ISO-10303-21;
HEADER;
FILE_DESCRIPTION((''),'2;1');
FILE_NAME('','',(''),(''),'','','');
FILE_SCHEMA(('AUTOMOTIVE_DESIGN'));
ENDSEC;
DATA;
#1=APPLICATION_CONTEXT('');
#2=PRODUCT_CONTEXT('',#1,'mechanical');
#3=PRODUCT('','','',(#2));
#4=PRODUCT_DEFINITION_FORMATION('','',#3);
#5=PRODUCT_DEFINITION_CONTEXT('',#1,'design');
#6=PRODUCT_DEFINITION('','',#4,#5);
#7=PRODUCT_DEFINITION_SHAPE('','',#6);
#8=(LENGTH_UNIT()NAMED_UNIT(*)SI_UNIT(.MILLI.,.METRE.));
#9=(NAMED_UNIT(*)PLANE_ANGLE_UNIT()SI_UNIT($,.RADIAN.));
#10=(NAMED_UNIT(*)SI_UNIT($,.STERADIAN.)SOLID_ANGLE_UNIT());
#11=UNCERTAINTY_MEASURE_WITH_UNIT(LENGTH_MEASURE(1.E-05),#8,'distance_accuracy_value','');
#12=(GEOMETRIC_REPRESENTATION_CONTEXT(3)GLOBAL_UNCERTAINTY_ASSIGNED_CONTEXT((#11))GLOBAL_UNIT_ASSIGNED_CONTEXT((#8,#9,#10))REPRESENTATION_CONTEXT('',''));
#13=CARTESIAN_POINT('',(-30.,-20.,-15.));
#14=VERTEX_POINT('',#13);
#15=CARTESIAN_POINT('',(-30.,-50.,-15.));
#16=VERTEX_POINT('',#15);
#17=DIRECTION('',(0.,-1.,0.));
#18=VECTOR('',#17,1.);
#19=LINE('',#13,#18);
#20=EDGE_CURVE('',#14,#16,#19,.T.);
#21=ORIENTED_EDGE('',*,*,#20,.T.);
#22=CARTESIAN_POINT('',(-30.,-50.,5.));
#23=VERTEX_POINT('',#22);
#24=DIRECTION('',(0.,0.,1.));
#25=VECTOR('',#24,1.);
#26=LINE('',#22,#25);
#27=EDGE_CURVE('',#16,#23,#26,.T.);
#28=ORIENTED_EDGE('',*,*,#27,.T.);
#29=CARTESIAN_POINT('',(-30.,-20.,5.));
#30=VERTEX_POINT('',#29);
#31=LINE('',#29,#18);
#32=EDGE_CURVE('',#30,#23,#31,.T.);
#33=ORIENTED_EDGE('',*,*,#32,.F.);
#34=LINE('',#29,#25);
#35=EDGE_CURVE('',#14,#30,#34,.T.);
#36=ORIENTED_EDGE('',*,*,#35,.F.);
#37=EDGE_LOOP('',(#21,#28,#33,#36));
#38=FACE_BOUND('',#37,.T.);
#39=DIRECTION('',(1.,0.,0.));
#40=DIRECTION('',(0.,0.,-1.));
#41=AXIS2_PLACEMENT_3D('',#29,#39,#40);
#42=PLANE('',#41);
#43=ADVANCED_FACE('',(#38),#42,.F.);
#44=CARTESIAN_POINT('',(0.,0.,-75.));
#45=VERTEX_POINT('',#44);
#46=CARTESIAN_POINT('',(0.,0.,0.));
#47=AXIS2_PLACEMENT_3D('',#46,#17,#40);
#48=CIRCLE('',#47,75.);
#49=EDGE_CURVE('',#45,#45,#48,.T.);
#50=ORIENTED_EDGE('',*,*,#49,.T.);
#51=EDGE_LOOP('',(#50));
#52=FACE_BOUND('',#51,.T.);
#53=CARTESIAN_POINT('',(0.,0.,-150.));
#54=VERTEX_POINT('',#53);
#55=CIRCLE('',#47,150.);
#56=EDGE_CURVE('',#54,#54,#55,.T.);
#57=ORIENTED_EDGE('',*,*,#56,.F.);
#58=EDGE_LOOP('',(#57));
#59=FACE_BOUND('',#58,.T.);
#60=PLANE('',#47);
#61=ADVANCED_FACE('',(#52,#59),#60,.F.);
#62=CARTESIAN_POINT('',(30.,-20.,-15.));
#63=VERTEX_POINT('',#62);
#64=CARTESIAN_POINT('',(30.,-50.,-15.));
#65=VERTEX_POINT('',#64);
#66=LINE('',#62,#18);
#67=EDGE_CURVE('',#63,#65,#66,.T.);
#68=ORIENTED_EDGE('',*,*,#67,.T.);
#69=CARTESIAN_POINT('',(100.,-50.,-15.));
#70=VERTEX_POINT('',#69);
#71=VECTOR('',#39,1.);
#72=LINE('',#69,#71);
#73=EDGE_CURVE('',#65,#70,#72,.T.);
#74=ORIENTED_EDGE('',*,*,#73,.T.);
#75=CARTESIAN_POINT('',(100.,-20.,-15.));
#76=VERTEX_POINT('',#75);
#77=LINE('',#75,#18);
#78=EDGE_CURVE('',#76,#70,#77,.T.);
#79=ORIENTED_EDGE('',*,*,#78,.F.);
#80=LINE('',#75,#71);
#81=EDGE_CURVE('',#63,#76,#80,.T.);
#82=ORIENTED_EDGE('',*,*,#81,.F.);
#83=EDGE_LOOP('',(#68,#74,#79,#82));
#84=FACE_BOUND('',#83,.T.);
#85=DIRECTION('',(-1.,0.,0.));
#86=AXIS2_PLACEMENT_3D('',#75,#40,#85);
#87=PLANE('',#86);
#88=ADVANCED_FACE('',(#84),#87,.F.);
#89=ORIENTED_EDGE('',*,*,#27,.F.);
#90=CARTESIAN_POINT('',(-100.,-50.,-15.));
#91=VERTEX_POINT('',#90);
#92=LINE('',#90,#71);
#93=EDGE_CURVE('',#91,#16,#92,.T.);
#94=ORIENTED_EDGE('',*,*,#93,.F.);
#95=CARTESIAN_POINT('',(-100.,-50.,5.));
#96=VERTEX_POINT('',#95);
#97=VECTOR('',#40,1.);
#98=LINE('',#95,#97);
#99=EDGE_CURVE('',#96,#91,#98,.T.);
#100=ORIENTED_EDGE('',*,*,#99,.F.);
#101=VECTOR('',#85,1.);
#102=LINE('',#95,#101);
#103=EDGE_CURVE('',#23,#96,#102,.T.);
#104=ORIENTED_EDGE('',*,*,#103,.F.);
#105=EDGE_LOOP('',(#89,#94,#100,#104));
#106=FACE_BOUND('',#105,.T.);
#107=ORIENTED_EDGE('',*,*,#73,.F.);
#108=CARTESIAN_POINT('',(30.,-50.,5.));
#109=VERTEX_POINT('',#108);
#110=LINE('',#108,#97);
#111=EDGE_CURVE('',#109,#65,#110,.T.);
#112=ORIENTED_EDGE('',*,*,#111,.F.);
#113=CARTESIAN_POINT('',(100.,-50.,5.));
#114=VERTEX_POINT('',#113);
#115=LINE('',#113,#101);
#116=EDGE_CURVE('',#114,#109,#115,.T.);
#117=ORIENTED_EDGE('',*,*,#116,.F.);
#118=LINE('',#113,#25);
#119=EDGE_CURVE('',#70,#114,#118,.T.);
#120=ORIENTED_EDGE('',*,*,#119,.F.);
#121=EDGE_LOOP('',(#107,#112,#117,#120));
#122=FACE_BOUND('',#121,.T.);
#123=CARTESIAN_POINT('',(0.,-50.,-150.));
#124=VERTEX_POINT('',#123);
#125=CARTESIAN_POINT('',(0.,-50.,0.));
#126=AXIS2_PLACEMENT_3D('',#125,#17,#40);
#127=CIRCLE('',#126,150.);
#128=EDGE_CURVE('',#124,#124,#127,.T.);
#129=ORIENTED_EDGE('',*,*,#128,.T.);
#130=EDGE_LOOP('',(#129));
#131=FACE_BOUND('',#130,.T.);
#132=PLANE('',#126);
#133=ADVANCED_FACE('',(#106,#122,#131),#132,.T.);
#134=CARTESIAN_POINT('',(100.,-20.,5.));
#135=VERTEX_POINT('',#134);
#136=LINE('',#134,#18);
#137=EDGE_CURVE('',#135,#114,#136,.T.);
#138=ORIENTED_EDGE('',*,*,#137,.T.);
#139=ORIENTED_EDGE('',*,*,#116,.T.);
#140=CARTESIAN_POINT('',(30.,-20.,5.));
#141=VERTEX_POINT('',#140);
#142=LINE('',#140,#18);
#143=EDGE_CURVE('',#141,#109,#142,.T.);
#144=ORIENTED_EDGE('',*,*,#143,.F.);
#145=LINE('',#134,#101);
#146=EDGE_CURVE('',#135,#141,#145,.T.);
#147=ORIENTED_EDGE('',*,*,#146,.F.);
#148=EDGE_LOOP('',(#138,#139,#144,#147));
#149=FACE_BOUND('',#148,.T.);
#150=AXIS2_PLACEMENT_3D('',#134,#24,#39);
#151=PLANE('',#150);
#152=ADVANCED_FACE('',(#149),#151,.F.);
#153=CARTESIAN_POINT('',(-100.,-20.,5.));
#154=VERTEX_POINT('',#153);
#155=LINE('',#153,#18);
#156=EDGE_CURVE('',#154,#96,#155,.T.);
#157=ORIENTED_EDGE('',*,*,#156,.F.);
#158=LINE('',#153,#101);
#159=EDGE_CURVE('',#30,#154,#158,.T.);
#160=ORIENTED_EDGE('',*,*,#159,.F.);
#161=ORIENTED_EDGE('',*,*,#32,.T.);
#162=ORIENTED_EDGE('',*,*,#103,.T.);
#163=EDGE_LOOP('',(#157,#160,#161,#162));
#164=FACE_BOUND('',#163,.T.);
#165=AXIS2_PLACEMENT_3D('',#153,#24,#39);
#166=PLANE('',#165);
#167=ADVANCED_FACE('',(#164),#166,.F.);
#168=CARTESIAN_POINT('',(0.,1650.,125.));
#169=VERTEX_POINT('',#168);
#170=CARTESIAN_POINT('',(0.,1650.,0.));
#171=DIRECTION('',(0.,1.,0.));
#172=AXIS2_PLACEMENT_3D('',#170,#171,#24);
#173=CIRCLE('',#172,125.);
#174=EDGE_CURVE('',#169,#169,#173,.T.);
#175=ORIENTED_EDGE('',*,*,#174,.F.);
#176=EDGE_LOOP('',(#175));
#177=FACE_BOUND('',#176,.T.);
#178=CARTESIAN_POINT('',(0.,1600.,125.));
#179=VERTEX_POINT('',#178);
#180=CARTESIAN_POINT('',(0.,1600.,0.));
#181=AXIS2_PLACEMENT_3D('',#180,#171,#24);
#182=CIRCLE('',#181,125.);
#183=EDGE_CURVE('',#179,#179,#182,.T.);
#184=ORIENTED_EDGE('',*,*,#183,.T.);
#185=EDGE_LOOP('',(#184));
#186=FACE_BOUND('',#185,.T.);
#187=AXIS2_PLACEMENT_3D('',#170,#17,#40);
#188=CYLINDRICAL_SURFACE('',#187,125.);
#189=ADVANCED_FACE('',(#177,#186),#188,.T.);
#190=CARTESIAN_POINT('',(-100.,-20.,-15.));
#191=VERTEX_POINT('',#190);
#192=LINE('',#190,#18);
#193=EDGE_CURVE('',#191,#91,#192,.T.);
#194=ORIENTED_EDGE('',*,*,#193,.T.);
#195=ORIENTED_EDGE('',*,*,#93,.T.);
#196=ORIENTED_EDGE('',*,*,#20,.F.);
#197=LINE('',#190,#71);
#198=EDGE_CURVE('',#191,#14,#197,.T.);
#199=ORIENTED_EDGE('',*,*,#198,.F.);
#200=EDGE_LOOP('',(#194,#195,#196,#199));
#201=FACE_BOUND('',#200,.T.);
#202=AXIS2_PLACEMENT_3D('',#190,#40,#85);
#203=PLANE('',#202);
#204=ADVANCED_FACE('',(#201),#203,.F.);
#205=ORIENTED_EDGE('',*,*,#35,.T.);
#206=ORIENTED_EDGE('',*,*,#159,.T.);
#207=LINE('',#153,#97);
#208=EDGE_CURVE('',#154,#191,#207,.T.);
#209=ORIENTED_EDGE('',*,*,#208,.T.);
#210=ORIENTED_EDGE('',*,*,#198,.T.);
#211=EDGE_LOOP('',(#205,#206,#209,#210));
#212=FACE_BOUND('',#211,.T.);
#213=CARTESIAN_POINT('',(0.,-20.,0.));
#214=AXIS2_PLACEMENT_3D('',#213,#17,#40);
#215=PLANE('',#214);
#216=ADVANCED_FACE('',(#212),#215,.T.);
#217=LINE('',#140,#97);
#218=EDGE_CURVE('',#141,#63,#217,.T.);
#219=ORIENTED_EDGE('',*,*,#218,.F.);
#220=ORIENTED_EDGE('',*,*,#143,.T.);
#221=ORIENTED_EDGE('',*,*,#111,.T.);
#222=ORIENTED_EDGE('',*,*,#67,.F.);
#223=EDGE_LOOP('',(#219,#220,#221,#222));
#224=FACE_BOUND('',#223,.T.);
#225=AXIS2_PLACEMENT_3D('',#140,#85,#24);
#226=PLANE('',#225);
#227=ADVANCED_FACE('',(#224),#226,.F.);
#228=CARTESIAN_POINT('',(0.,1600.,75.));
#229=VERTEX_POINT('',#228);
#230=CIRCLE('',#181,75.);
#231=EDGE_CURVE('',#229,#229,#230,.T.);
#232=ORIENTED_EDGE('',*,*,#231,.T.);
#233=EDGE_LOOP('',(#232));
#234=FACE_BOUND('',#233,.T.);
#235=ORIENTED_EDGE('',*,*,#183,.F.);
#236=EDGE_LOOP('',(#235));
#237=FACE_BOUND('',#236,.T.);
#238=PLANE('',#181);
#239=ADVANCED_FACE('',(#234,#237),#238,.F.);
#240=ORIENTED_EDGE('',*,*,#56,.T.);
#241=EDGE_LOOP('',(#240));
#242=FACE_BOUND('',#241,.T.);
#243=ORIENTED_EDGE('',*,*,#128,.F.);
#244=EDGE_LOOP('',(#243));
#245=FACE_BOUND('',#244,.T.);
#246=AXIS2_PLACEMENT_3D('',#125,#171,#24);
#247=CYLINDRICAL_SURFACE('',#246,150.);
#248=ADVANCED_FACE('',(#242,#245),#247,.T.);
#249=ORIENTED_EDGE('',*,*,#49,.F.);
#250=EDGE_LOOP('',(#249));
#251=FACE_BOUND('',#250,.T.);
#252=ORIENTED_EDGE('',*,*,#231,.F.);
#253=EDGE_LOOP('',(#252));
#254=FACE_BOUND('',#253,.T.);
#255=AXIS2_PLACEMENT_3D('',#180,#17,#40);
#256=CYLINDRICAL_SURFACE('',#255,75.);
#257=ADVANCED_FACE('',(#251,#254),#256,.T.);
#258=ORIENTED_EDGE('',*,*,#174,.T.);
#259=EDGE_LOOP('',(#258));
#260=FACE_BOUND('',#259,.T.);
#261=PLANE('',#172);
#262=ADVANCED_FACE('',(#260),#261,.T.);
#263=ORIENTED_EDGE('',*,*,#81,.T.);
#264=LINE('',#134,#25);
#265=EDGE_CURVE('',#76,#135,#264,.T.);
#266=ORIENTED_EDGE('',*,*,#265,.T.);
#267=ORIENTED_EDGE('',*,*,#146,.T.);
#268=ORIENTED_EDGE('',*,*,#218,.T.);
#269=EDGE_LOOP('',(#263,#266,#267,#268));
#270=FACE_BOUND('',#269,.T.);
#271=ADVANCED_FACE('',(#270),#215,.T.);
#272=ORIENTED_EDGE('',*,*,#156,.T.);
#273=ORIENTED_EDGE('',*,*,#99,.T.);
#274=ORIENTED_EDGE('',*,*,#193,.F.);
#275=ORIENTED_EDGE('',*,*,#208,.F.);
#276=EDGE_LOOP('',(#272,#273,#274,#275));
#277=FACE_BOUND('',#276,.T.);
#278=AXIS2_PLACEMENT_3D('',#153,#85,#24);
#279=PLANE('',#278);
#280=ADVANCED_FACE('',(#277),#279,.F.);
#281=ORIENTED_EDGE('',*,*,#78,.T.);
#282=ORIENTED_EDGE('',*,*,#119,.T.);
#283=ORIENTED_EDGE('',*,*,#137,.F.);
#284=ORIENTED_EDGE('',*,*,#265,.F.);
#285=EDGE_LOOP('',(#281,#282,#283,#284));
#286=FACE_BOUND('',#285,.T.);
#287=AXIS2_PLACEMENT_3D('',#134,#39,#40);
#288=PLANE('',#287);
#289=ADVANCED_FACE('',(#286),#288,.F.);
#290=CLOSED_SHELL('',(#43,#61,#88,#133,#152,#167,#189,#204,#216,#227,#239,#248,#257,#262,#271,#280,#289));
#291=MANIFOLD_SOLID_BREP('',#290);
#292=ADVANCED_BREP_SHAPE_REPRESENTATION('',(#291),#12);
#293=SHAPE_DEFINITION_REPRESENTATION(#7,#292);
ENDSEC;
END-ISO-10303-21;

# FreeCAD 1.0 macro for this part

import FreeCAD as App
import Part
import Sketcher

V = App.Vector


def add_polygon(sketch, points):
    """Adds a closed chain of lines whose ends are joined by coincident constraints."""
    first, n = sketch.GeometryCount, len(points)
    for a, b in zip(points, points[1:] + points[:1]):
        sketch.addGeometry(Part.LineSegment(App.Vector(*a, 0), App.Vector(*b, 0)), False)
    for i in range(n):
        sketch.addConstraint(Sketcher.Constraint("Coincident", first + i, 2, first + (i + 1) % n, 1))

doc = App.newDocument("Part")
body = doc.addObject("PartDesign::Body", "Body")

sketch1 = body.newObject("Sketcher::SketchObject", "Sketch")
sketch1.AttachmentSupport = (doc.getObject("XZ_Plane"), [""])
sketch1.MapMode = "FlatFace"
sketch1.addGeometry(Part.Circle(V(0, 0, 0), V(0, 0, 1), 75), False)
sketch1.addConstraint([
    Sketcher.Constraint("Coincident", 0, 3, -1, 1),
    Sketcher.Constraint("Diameter", 0, 150.0),
])
pad1 = body.newObject("PartDesign::Pad", "Pad")
pad1.Profile = sketch1
pad1.Length = 1600
pad1.Reversed = True

sketch2 = body.newObject("Sketcher::SketchObject", "Sketch001")
sketch2.AttachmentSupport = (doc.getObject("XZ_Plane"), [""])
sketch2.MapMode = "FlatFace"
sketch2.AttachmentOffset = App.Placement(V(0, 0, -1600), App.Rotation())
sketch2.addGeometry(Part.Circle(V(0, 0, 0), V(0, 0, 1), 125), False)
sketch2.addConstraint([
    Sketcher.Constraint("Coincident", 0, 3, -1, 1),
    Sketcher.Constraint("Diameter", 0, 250.0),
])
pad2 = body.newObject("PartDesign::Pad", "Pad001")
pad2.Profile = sketch2
pad2.Length = 50
pad2.Reversed = True

sketch3 = body.newObject("Sketcher::SketchObject", "Sketch002")
sketch3.AttachmentSupport = (doc.getObject("XZ_Plane"), [""])
sketch3.MapMode = "FlatFace"
sketch3.addGeometry(Part.Circle(V(0, 0, 0), V(0, 0, 1), 150), False)
sketch3.addConstraint([
    Sketcher.Constraint("Coincident", 0, 3, -1, 1),
    Sketcher.Constraint("Diameter", 0, 300.0),
])
pad3 = body.newObject("PartDesign::Pad", "Pad002")
pad3.Profile = sketch3
pad3.Length = 50

sketch4 = body.newObject("Sketcher::SketchObject", "Sketch003")
sketch4.AttachmentSupport = (doc.getObject("XZ_Plane"), [""])
sketch4.MapMode = "FlatFace"
sketch4.AttachmentOffset = App.Placement(V(0, 0, 50), App.Rotation())
add_polygon(sketch4, [(-100, 5), (-100, -15), (-30, -15), (-30, 5)])
add_polygon(sketch4, [(30, 5), (30, -15), (100, -15), (100, 5)])
sketch4.addConstraint([
    Sketcher.Constraint("Vertical", 0),
    Sketcher.Constraint("Horizontal", 1),
    Sketcher.Constraint("Vertical", 2),
    Sketcher.Constraint("Horizontal", 3),
    Sketcher.Constraint("Vertical", 4),
    Sketcher.Constraint("Horizontal", 5),
    Sketcher.Constraint("Vertical", 6),
    Sketcher.Constraint("Horizontal", 7),
    Sketcher.Constraint("Symmetric", 1, 2, 4, 2, -2),
    Sketcher.Constraint("Symmetric", 3, 2, 6, 2, -2),
    Sketcher.Constraint("DistanceX", 1, 1, 1, 2, 70.0),
    Sketcher.Constraint("DistanceY", 0, 2, 0, 1, 20.0),
    Sketcher.Constraint("DistanceX", 0, 2, -1, 1, 100.0),
    Sketcher.Constraint("DistanceY", 0, 2, -1, 1, 15.0),
])
pocket1 = body.newObject("PartDesign::Pocket", "Pocket")
pocket1.Profile = sketch4
pocket1.Length = 30

doc.recompute()
